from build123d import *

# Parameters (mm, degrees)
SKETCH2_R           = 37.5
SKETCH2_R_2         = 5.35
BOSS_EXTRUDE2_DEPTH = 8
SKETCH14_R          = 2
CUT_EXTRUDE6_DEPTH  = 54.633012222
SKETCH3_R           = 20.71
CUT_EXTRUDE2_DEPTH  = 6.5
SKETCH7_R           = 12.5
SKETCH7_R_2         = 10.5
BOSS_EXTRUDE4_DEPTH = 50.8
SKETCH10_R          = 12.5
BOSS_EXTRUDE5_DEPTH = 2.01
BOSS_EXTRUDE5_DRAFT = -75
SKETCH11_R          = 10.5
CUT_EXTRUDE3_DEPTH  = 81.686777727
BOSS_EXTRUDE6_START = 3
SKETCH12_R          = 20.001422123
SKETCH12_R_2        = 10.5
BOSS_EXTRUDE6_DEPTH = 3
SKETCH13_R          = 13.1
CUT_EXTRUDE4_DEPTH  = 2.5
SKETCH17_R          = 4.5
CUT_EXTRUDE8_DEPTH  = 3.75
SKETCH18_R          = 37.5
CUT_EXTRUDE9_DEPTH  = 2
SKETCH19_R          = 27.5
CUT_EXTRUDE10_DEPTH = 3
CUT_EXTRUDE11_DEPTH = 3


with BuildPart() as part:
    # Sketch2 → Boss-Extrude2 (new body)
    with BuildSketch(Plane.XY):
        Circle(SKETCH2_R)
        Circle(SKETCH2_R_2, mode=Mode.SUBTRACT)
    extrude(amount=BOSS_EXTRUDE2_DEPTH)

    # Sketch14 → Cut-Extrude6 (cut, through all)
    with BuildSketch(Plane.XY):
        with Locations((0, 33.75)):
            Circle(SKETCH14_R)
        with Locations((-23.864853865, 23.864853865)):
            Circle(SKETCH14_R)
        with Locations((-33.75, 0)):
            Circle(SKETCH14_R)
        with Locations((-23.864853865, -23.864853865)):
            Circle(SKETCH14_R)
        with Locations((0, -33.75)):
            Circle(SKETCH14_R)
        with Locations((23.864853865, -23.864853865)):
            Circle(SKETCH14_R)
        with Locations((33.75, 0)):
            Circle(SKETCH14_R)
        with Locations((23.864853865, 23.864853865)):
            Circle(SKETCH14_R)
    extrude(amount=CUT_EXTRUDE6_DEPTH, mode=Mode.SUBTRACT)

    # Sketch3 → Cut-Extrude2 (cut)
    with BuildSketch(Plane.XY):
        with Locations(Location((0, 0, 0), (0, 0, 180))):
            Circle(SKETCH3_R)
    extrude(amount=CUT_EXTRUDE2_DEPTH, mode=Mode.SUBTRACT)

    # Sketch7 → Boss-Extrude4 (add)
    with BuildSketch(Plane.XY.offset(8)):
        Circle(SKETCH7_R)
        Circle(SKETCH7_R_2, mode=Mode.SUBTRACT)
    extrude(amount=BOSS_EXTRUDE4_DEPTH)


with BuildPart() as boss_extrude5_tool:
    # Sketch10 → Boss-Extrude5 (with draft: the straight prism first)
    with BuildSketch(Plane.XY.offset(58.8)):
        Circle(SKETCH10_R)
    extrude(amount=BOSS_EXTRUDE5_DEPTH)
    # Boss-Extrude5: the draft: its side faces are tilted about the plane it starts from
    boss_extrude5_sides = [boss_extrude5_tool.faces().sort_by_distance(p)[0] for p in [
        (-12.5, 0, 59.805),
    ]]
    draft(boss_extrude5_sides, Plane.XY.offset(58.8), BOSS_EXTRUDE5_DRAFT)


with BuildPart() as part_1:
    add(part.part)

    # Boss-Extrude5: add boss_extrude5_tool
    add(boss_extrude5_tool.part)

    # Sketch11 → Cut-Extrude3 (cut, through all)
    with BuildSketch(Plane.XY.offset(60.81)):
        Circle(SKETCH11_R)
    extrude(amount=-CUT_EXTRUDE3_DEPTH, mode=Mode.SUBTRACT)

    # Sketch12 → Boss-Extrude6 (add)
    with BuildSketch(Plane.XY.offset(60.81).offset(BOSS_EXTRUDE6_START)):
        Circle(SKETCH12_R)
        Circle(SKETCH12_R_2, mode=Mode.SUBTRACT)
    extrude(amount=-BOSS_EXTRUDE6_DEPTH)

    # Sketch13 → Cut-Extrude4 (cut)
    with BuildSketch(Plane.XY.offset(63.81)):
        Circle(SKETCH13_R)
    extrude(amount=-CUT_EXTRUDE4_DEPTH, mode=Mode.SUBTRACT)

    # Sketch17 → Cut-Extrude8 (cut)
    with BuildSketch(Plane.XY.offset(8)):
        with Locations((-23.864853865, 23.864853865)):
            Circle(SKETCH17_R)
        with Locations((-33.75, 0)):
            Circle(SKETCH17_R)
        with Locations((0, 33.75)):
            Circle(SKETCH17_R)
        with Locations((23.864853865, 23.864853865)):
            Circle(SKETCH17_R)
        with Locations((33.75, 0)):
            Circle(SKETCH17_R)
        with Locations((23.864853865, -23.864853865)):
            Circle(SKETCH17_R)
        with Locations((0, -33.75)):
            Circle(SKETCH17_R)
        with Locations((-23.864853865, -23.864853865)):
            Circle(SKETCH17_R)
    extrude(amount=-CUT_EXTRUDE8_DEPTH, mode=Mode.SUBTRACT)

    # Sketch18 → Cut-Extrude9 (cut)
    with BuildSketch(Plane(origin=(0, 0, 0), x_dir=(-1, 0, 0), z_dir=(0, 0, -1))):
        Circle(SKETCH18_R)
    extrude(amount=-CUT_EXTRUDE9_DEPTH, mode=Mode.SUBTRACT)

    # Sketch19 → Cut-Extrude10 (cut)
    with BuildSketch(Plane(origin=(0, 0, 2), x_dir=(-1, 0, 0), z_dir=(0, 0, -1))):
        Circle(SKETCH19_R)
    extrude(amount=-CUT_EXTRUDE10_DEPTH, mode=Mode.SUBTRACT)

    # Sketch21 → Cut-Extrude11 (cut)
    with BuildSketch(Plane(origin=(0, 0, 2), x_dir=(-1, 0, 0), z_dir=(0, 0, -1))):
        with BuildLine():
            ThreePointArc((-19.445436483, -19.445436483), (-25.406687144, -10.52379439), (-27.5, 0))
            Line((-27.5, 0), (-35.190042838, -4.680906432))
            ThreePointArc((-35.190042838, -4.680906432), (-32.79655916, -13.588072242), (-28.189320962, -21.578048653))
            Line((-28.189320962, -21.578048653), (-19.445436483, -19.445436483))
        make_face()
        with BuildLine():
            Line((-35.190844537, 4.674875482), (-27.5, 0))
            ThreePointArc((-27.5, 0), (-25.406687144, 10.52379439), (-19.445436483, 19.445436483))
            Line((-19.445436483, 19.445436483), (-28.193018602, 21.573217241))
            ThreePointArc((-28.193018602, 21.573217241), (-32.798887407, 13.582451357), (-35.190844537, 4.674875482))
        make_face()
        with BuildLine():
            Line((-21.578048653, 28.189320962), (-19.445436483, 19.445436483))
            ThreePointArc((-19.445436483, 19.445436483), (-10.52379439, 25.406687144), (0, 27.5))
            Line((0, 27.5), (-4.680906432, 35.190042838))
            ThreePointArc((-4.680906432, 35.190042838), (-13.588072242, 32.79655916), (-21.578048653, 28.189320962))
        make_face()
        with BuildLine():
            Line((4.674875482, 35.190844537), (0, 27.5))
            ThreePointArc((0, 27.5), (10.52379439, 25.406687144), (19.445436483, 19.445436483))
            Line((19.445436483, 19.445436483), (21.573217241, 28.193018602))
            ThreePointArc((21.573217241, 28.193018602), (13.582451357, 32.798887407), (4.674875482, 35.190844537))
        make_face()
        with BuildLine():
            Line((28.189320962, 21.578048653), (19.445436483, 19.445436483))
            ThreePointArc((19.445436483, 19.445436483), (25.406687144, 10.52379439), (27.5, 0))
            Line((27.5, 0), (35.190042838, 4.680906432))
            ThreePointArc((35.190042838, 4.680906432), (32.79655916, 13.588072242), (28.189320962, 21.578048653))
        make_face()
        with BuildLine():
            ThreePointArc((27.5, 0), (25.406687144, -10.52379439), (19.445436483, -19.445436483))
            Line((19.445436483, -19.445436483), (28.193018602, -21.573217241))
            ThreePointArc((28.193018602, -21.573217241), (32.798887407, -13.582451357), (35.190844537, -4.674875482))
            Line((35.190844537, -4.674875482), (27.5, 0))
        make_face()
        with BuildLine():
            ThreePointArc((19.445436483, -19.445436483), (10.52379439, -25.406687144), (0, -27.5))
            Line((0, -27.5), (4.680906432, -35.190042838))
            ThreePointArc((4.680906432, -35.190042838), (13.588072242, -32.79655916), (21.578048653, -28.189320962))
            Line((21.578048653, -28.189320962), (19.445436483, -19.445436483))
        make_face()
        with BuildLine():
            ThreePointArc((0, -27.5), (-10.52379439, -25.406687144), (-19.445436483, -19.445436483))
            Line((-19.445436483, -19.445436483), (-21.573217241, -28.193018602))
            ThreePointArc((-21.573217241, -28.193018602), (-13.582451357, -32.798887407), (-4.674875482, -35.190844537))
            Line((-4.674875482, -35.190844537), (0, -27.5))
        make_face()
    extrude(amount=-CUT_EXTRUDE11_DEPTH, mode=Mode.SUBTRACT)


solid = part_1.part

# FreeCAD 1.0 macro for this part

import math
import FreeCAD as App
import Part
import Sketcher
from FreeCAD import Vector


def faces_at(feature, points):
    """Names of the faces that lie closest to the given points."""
    faces = feature.Shape.Faces
    near = lambda p: min(range(len(faces)), key=lambda i: faces[i].distToShape(Part.Vertex(*p))[0])
    return sorted({f"Face{near(p) + 1}" for p in points})

doc = App.newDocument("Part")
body = doc.addObject("PartDesign::Body", "Body")

# Sketch on XY plane
sketch1 = body.newObject("Sketcher::SketchObject", "Sketch")
sketch1.AttachmentSupport = (doc.getObject("XY_Plane"), [""])
sketch1.MapMode = "FlatFace"
sketch1.addGeometry(Part.Circle(Vector(0, 0, 0), Vector(0, 0, 1), 38), False)
sketch1.addGeometry(Part.Circle(Vector(0, 0, 0), Vector(0, 0, 1), 5), False)
sketch1.addConstraint(Sketcher.Constraint("Coincident", 0, 3, -1, 1))
sketch1.addConstraint(Sketcher.Constraint("Coincident", 1, 3, -1, 1))
sketch1.addConstraint(Sketcher.Constraint("Diameter", 0, 75.0))
sketch1.addConstraint(Sketcher.Constraint("Diameter", 1, 10.7))
pad1 = body.newObject("PartDesign::Pad", "Pad")
pad1.Profile = sketch1
pad1.Length = 8

# Sketch on XY plane
sketch2 = body.newObject("Sketcher::SketchObject", "Sketch001")
sketch2.AttachmentSupport = (doc.getObject("XY_Plane"), [""])
sketch2.MapMode = "FlatFace"
sketch2.addGeometry(Part.Circle(Vector(0, 33.8, 0), Vector(0, 0, 1), 2), False)
sketch2.addGeometry(Part.Circle(Vector(-23.9, 23.9, 0), Vector(0, 0, 1), 2), False)
sketch2.addGeometry(Part.Circle(Vector(-33.8, 0, 0), Vector(0, 0, 1), 2), False)
sketch2.addGeometry(Part.Circle(Vector(-23.9, -23.9, 0), Vector(0, 0, 1), 2), False)
sketch2.addGeometry(Part.Circle(Vector(0, -33.8, 0), Vector(0, 0, 1), 2), False)
sketch2.addGeometry(Part.Circle(Vector(23.9, -23.9, 0), Vector(0, 0, 1), 2), False)
sketch2.addGeometry(Part.Circle(Vector(33.8, 0, 0), Vector(0, 0, 1), 2), False)
sketch2.addGeometry(Part.Circle(Vector(23.9, 23.9, 0), Vector(0, 0, 1), 2), False)
sketch2.addConstraint(Sketcher.Constraint("Equal", 0, 1))
sketch2.addConstraint(Sketcher.Constraint("Equal", 1, 2))
sketch2.addConstraint(Sketcher.Constraint("Equal", 2, 3))
sketch2.addConstraint(Sketcher.Constraint("Equal", 3, 4))
sketch2.addConstraint(Sketcher.Constraint("Equal", 4, 5))
sketch2.addConstraint(Sketcher.Constraint("Equal", 5, 6))
sketch2.addConstraint(Sketcher.Constraint("Equal", 6, 7))
sketch2.addConstraint(Sketcher.Constraint("Symmetric", 0, 3, 4, 3, -1, 1))
sketch2.addConstraint(Sketcher.Constraint("Symmetric", 1, 3, 5, 3, -1, 1))
sketch2.addConstraint(Sketcher.Constraint("Symmetric", 2, 3, 6, 3, -1, 1))
sketch2.addConstraint(Sketcher.Constraint("Symmetric", 3, 3, 7, 3, -1, 1))
sketch2.addConstraint(Sketcher.Constraint("Symmetric", 3, 3, 5, 3, -2))
sketch2.addConstraint(Sketcher.Constraint("PointOnObject", 0, 3, -2))
sketch2.addConstraint(Sketcher.Constraint("PointOnObject", 2, 3, -1))
sketch2.addConstraint(Sketcher.Constraint("Diameter", 0, 4.0))
sketch2.addConstraint(Sketcher.Constraint("DistanceY", 4, 3, 0, 3, 67.5))
sketch2.addConstraint(Sketcher.Constraint("DistanceX", 2, 3, -1, 1, 33.75))
sketch2.addConstraint(Sketcher.Constraint("DistanceX", 1, 3, -1, 1, 23.864854))
sketch2.addConstraint(Sketcher.Constraint("DistanceY", -1, 1, 1, 3, 23.864854))
pocket1 = body.newObject("PartDesign::Pocket", "Pocket")
pocket1.Profile = sketch2
pocket1.Type = "ThroughAll"
pocket1.Reversed = True

# Sketch on XY plane
sketch3 = body.newObject("Sketcher::SketchObject", "Sketch002")
sketch3.AttachmentSupport = (doc.getObject("XY_Plane"), [""])
sketch3.MapMode = "FlatFace"
sketch3.addGeometry(Part.Circle(Vector(0, 0, 0), Vector(0, 0, 1), 21), False)
sketch3.addConstraint(Sketcher.Constraint("Coincident", 0, 3, -1, 1))
sketch3.addConstraint(Sketcher.Constraint("Diameter", 0, 41.42))
pocket2 = body.newObject("PartDesign::Pocket", "Pocket001")
pocket2.Profile = sketch3
pocket2.Length = 6.5
pocket2.Reversed = True

# Sketch on XY plane
sketch4 = body.newObject("Sketcher::SketchObject", "Sketch003")
sketch4.AttachmentSupport = (doc.getObject("XY_Plane"), [""])
sketch4.MapMode = "FlatFace"
sketch4.AttachmentOffset = App.Placement(Vector(0, 0, 8), App.Rotation())
sketch4.addGeometry(Part.Circle(Vector(0, 0, 0), Vector(0, 0, 1), 12), False)
sketch4.addGeometry(Part.Circle(Vector(0, 0, 0), Vector(0, 0, 1), 10), False)
sketch4.addConstraint(Sketcher.Constraint("Coincident", 0, 3, -1, 1))
sketch4.addConstraint(Sketcher.Constraint("Coincident", 1, 3, -1, 1))
sketch4.addConstraint(Sketcher.Constraint("Diameter", 0, 25.0))
sketch4.addConstraint(Sketcher.Constraint("Diameter", 1, 21.0))
pad2 = body.newObject("PartDesign::Pad", "Pad001")
pad2.Profile = sketch4
pad2.Length = 50.8
body2 = doc.addObject("PartDesign::Body", "Body001")

# Sketch on XY plane
sketch5 = body2.newObject("Sketcher::SketchObject", "Sketch004")
sketch5.AttachmentSupport = (doc.getObject("XY_Plane001"), [""])
sketch5.MapMode = "FlatFace"
sketch5.AttachmentOffset = App.Placement(Vector(0, 0, 58.8), App.Rotation())
sketch5.addGeometry(Part.Circle(Vector(0, 0, 0), Vector(0, 0, 1), 12), False)
sketch5.addConstraint(Sketcher.Constraint("Coincident", 0, 3, -1, 1))
sketch5.addConstraint(Sketcher.Constraint("Diameter", 0, 25.0))
pad3 = body2.newObject("PartDesign::Pad", "Pad002")
pad3.Profile = sketch5
pad3.Length = 2.01
doc.recompute()

datumplane = body2.newObject("PartDesign::Plane", "DatumPlane")
datumplane.AttachmentSupport = (doc.getObject("XY_Plane001"), [""])
datumplane.MapMode = "FlatFace"
datumplane.AttachmentOffset = App.Placement(Vector(0, 0, 58.8), App.Rotation())
draft = body2.newObject("PartDesign::Draft", "Draft")
draft.Base = (pad3, faces_at(pad3, [(-12.5, 0, 59.805)]))
draft.NeutralPlane = (datumplane, [""])
draft.Angle = 75
draft.Reversed = True
doc.recompute()

boolean = body.newObject("PartDesign::Boolean", "Boolean")
boolean.Type = "Fuse"
boolean.addObjects([body2])

# Sketch on XY plane
sketch6 = body.newObject("Sketcher::SketchObject", "Sketch005")
sketch6.AttachmentSupport = (doc.getObject("XY_Plane"), [""])
sketch6.MapMode = "FlatFace"
sketch6.AttachmentOffset = App.Placement(Vector(0, 0, 60.81), App.Rotation())
sketch6.addGeometry(Part.Circle(Vector(0, 0, 0), Vector(0, 0, 1), 10), False)
sketch6.addConstraint(Sketcher.Constraint("Coincident", 0, 3, -1, 1))
sketch6.addConstraint(Sketcher.Constraint("Diameter", 0, 21.0))
pocket3 = body.newObject("PartDesign::Pocket", "Pocket002")
pocket3.Profile = sketch6
pocket3.Type = "ThroughAll"

# Sketch on XY plane
sketch7 = body.newObject("Sketcher::SketchObject", "Sketch006")
sketch7.AttachmentSupport = (doc.getObject("XY_Plane"), [""])
sketch7.MapMode = "FlatFace"
sketch7.AttachmentOffset = App.Placement(Vector(0, 0, 63.81), App.Rotation())
sketch7.addGeometry(Part.Circle(Vector(0, 0, 0), Vector(0, 0, 1), 20), False)
sketch7.addGeometry(Part.Circle(Vector(0, 0, 0), Vector(0, 0, 1), 10), False)
sketch7.addConstraint(Sketcher.Constraint("Coincident", 0, 3, -1, 1))
sketch7.addConstraint(Sketcher.Constraint("Coincident", 1, 3, -1, 1))
sketch7.addConstraint(Sketcher.Constraint("Diameter", 1, 21.0))
sketch7.addConstraint(Sketcher.Constraint("Diameter", 0, 40.002844))
pad4 = body.newObject("PartDesign::Pad", "Pad003")
pad4.Profile = sketch7
pad4.Length = 3
pad4.Reversed = True

# Sketch on XY plane
sketch8 = body.newObject("Sketcher::SketchObject", "Sketch007")
sketch8.AttachmentSupport = (doc.getObject("XY_Plane"), [""])
sketch8.MapMode = "FlatFace"
sketch8.AttachmentOffset = App.Placement(Vector(0, 0, 63.81), App.Rotation())
sketch8.addGeometry(Part.Circle(Vector(0, 0, 0), Vector(0, 0, 1), 13), False)
sketch8.addConstraint(Sketcher.Constraint("Coincident", 0, 3, -1, 1))
sketch8.addConstraint(Sketcher.Constraint("Diameter", 0, 26.2))
pocket4 = body.newObject("PartDesign::Pocket", "Pocket003")
pocket4.Profile = sketch8
pocket4.Length = 2.5

# Sketch on XY plane
sketch9 = body.newObject("Sketcher::SketchObject", "Sketch008")
sketch9.AttachmentSupport = (doc.getObject("XY_Plane"), [""])
sketch9.MapMode = "FlatFace"
sketch9.AttachmentOffset = App.Placement(Vector(0, 0, 8), App.Rotation())
sketch9.addGeometry(Part.Circle(Vector(-23.9, 23.9, 0), Vector(0, 0, 1), 4.5), False)
sketch9.addGeometry(Part.Circle(Vector(-33.8, 0, 0), Vector(0, 0, 1), 4.5), False)
sketch9.addGeometry(Part.Circle(Vector(0, 33.8, 0), Vector(0, 0, 1), 4.5), False)
sketch9.addGeometry(Part.Circle(Vector(23.9, 23.9, 0), Vector(0, 0, 1), 4.5), False)
sketch9.addGeometry(Part.Circle(Vector(33.8, 0, 0), Vector(0, 0, 1), 4.5), False)
sketch9.addGeometry(Part.Circle(Vector(23.9, -23.9, 0), Vector(0, 0, 1), 4.5), False)
sketch9.addGeometry(Part.Circle(Vector(0, -33.8, 0), Vector(0, 0, 1), 4.5), False)
sketch9.addGeometry(Part.Circle(Vector(-23.9, -23.9, 0), Vector(0, 0, 1), 4.5), False)
sketch9.addConstraint(Sketcher.Constraint("Equal", 0, 1))
sketch9.addConstraint(Sketcher.Constraint("Equal", 1, 2))
sketch9.addConstraint(Sketcher.Constraint("Equal", 2, 3))
sketch9.addConstraint(Sketcher.Constraint("Equal", 3, 4))
sketch9.addConstraint(Sketcher.Constraint("Equal", 4, 5))
sketch9.addConstraint(Sketcher.Constraint("Equal", 5, 6))
sketch9.addConstraint(Sketcher.Constraint("Equal", 6, 7))
sketch9.addConstraint(Sketcher.Constraint("Symmetric", 1, 3, 4, 3, -1, 1))
sketch9.addConstraint(Sketcher.Constraint("Symmetric", 0, 3, 5, 3, -1, 1))
sketch9.addConstraint(Sketcher.Constraint("Symmetric", 2, 3, 6, 3, -1, 1))
sketch9.addConstraint(Sketcher.Constraint("Symmetric", 3, 3, 7, 3, -1, 1))
sketch9.addConstraint(Sketcher.Constraint("Symmetric", 0, 3, 3, 3, -2))
sketch9.addConstraint(Sketcher.Constraint("PointOnObject", 1, 3, -1))
sketch9.addConstraint(Sketcher.Constraint("PointOnObject", 2, 3, -2))
sketch9.addConstraint(Sketcher.Constraint("Diameter", 0, 9.0))
sketch9.addConstraint(Sketcher.Constraint("DistanceX", 1, 3, 4, 3, 67.5))
sketch9.addConstraint(Sketcher.Constraint("DistanceY", -1, 1, 2, 3, 33.75))
sketch9.addConstraint(Sketcher.Constraint("DistanceX", 0, 3, -1, 1, 23.864854))
sketch9.addConstraint(Sketcher.Constraint("DistanceY", -1, 1, 0, 3, 23.864854))
pocket5 = body.newObject("PartDesign::Pocket", "Pocket004")
pocket5.Profile = sketch9
pocket5.Length = 3.75

# Sketch on XY plane
sketch10 = body.newObject("Sketcher::SketchObject", "Sketch009")
sketch10.AttachmentSupport = (doc.getObject("XY_Plane"), [""])
sketch10.MapMode = "FlatFace"
sketch10.addGeometry(Part.Circle(Vector(0, 0, 0), Vector(0, 0, 1), 38), False)
sketch10.addConstraint(Sketcher.Constraint("Coincident", 0, 3, -1, 1))
sketch10.addConstraint(Sketcher.Constraint("Diameter", 0, 75.0))
pocket6 = body.newObject("PartDesign::Pocket", "Pocket005")
pocket6.Profile = sketch10
pocket6.Length = 2
pocket6.Reversed = True

# Sketch on XY plane
sketch11 = body.newObject("Sketcher::SketchObject", "Sketch010")
sketch11.AttachmentSupport = (doc.getObject("XY_Plane"), [""])
sketch11.MapMode = "FlatFace"
sketch11.AttachmentOffset = App.Placement(Vector(0, 0, 2), App.Rotation())
sketch11.addGeometry(Part.Circle(Vector(0, 0, 0), Vector(0, 0, 1), 28), False)
sketch11.addConstraint(Sketcher.Constraint("Coincident", 0, 3, -1, 1))
sketch11.addConstraint(Sketcher.Constraint("Diameter", 0, 55.0))
pocket7 = body.newObject("PartDesign::Pocket", "Pocket006")
pocket7.Profile = sketch11
pocket7.Length = 3
pocket7.Reversed = True

# Sketch on XY plane
sketch12 = body.newObject("Sketcher::SketchObject", "Sketch011")
sketch12.AttachmentSupport = (doc.getObject("XY_Plane"), [""])
sketch12.MapMode = "FlatFace"
sketch12.AttachmentOffset = App.Placement(Vector(0, 0, 2), App.Rotation())
sketch12.addGeometry(Part.ArcOfCircle(Part.Circle(Vector(0, 0, 0), Vector(0, 0, 1), 28), math.radians(-45), math.radians(0)), False)
sketch12.addGeometry(Part.LineSegment(Vector(28, 0, 0), Vector(35, -5, 0)), False)
sketch12.addGeometry(Part.ArcOfCircle(Part.Circle(Vector(0, 0, 0), Vector(0, 0, 1), 35), math.radians(-37), math.radians(-8)), False)
sketch12.addGeometry(Part.LineSegment(Vector(28, -22, 0), Vector(19, -19, 0)), False)
sketch12.addGeometry(Part.LineSegment(Vector(35, 5, 0), Vector(28, 0, 0)), False)
sketch12.addGeometry(Part.ArcOfCircle(Part.Circle(Vector(0, 0, 0), Vector(0, 0, 1), 28), math.radians(0), math.radians(45)), False)
sketch12.addGeometry(Part.LineSegment(Vector(19, 19, 0), Vector(28, 22, 0)), False)
sketch12.addGeometry(Part.ArcOfCircle(Part.Circle(Vector(0, 0, 0), Vector(0, 0, 1), 36), math.radians(8), math.radians(37)), False)
sketch12.addGeometry(Part.LineSegment(Vector(22, 28, 0), Vector(19, 19, 0)), False)
sketch12.addGeometry(Part.ArcOfCircle(Part.Circle(Vector(0, 0, 0), Vector(0, 0, 1), 28), math.radians(45), math.radians(90)), False)
sketch12.addGeometry(Part.LineSegment(Vector(0, 28, 0), Vector(5, 35, 0)), False)
sketch12.addGeometry(Part.ArcOfCircle(Part.Circle(Vector(0, 0, 0), Vector(0, 0, 1), 35), math.radians(53), math.radians(82)), False)
sketch12.addGeometry(Part.LineSegment(Vector(-5, 35, 0), Vector(0, 28, 0)), False)
sketch12.addGeometry(Part.ArcOfCircle(Part.Circle(Vector(0, 0, 0), Vector(0, 0, 1), 28), math.radians(90), math.radians(135)), False)
sketch12.addGeometry(Part.LineSegment(Vector(-19, 19, 0), Vector(-22, 28, 0)), False)
sketch12.addGeometry(Part.ArcOfCircle(Part.Circle(Vector(0, 0, 0), Vector(0, 0, 1), 36), math.radians(98), math.radians(127)), False)
sketch12.addGeometry(Part.LineSegment(Vector(-28, 22, 0), Vector(-19, 19, 0)), False)
sketch12.addGeometry(Part.ArcOfCircle(Part.Circle(Vector(0, 0, 0), Vector(0, 0, 1), 28), math.radians(135), math.radians(180)), False)
sketch12.addGeometry(Part.LineSegment(Vector(-28, 0, 0), Vector(-35, 5, 0)), False)
sketch12.addGeometry(Part.ArcOfCircle(Part.Circle(Vector(0, 0, 0), Vector(0, 0, 1), 35), math.radians(143), math.radians(172)), False)
sketch12.addGeometry(Part.ArcOfCircle(Part.Circle(Vector(0, 0, 0), Vector(0, 0, 1), 28), math.radians(-180), math.radians(-135)), False)
sketch12.addGeometry(Part.LineSegment(Vector(-19, -19, 0), Vector(-28, -22, 0)), False)
sketch12.addGeometry(Part.ArcOfCircle(Part.Circle(Vector(0, 0, 0), Vector(0, 0, 1), 36), math.radians(-172), math.radians(-143)), False)
sketch12.addGeometry(Part.LineSegment(Vector(-35, -5, 0), Vector(-28, 0, 0)), False)
sketch12.addGeometry(Part.ArcOfCircle(Part.Circle(Vector(0, 0, 0), Vector(0, 0, 1), 28), math.radians(-135), math.radians(-90)), False)
sketch12.addGeometry(Part.LineSegment(Vector(0, -28, 0), Vector(-5, -35, 0)), False)
sketch12.addGeometry(Part.ArcOfCircle(Part.Circle(Vector(0, 0, 0), Vector(0, 0, 1), 35), math.radians(-127), math.radians(-98)), False)
sketch12.addGeometry(Part.LineSegment(Vector(-22, -28, 0), Vector(-19, -19, 0)), False)
sketch12.addGeometry(Part.ArcOfCircle(Part.Circle(Vector(0, 0, 0), Vector(0, 0, 1), 28), math.radians(-90), math.radians(-45)), False)
sketch12.addGeometry(Part.LineSegment(Vector(19, -19, 0), Vector(22, -28, 0)), False)
sketch12.addGeometry(Part.ArcOfCircle(Part.Circle(Vector(0, 0, 0), Vector(0, 0, 1), 36), math.radians(-82), math.radians(-53)), False)
sketch12.addGeometry(Part.LineSegment(Vector(5, -35, 0), Vector(0, -28, 0)), False)
sketch12.addConstraint(Sketcher.Constraint("Coincident", 0, 2, 1, 1))
sketch12.addConstraint(Sketcher.Constraint("Coincident", 1, 2, 2, 2))
sketch12.addConstraint(Sketcher.Constraint("Coincident", 2, 1, 3, 1))
sketch12.addConstraint(Sketcher.Constraint("Coincident", 3, 2, 0, 1))
sketch12.addConstraint(Sketcher.Constraint("Coincident", 4, 2, 5, 1))
sketch12.addConstraint(Sketcher.Constraint("Coincident", 5, 2, 6, 1))
sketch12.addConstraint(Sketcher.Constraint("Coincident", 6, 2, 7, 2))
sketch12.addConstraint(Sketcher.Constraint("Coincident", 7, 1, 4, 1))
sketch12.addConstraint(Sketcher.Constraint("Coincident", 8, 2, 9, 1))
sketch12.addConstraint(Sketcher.Constraint("Coincident", 9, 2, 10, 1))
sketch12.addConstraint(Sketcher.Constraint("Coincident", 10, 2, 11, 2))
sketch12.addConstraint(Sketcher.Constraint("Coincident", 11, 1, 8, 1))
sketch12.addConstraint(Sketcher.Constraint("Coincident", 12, 2, 13, 1))
sketch12.addConstraint(Sketcher.Constraint("Coincident", 13, 2, 14, 1))
sketch12.addConstraint(Sketcher.Constraint("Coincident", 14, 2, 15, 2))
sketch12.addConstraint(Sketcher.Constraint("Coincident", 15, 1, 12, 1))
sketch12.addConstraint(Sketcher.Constraint("Coincident", 16, 2, 17, 1))
sketch12.addConstraint(Sketcher.Constraint("Coincident", 17, 2, 18, 1))
sketch12.addConstraint(Sketcher.Constraint("Coincident", 18, 2, 19, 2))
sketch12.addConstraint(Sketcher.Constraint("Coincident", 19, 1, 16, 1))
sketch12.addConstraint(Sketcher.Constraint("Coincident", 20, 2, 21, 1))
sketch12.addConstraint(Sketcher.Constraint("Coincident", 21, 2, 22, 2))
sketch12.addConstraint(Sketcher.Constraint("Coincident", 22, 1, 23, 1))
sketch12.addConstraint(Sketcher.Constraint("Coincident", 23, 2, 20, 1))
sketch12.addConstraint(Sketcher.Constraint("Coincident", 24, 2, 25, 1))
sketch12.addConstraint(Sketcher.Constraint("Coincident", 25, 2, 26, 2))
sketch12.addConstraint(Sketcher.Constraint("Coincident", 26, 1, 27, 1))
sketch12.addConstraint(Sketcher.Constraint("Coincident", 27, 2, 24, 1))
sketch12.addConstraint(Sketcher.Constraint("Coincident", 28, 2, 29, 1))
sketch12.addConstraint(Sketcher.Constraint("Coincident", 29, 2, 30, 2))
sketch12.addConstraint(Sketcher.Constraint("Coincident", 30, 1, 31, 1))
sketch12.addConstraint(Sketcher.Constraint("Coincident", 31, 2, 28, 1))
sketch12.addConstraint(Sketcher.Constraint("Coincident", 0, 3, -1, 1))
sketch12.addConstraint(Sketcher.Constraint("Coincident", 2, 3, -1, 1))
sketch12.addConstraint(Sketcher.Constraint("Coincident", 5, 3, -1, 1))
sketch12.addConstraint(Sketcher.Constraint("Coincident", 7, 3, -1, 1))
sketch12.addConstraint(Sketcher.Constraint("Coincident", 9, 3, -1, 1))
sketch12.addConstraint(Sketcher.Constraint("Coincident", 11, 3, -1, 1))
sketch12.addConstraint(Sketcher.Constraint("Coincident", 13, 3, -1, 1))
sketch12.addConstraint(Sketcher.Constraint("Coincident", 15, 3, -1, 1))
sketch12.addConstraint(Sketcher.Constraint("Coincident", 17, 3, -1, 1))
sketch12.addConstraint(Sketcher.Constraint("Coincident", 19, 3, -1, 1))
sketch12.addConstraint(Sketcher.Constraint("Coincident", 20, 3, -1, 1))
sketch12.addConstraint(Sketcher.Constraint("Coincident", 22, 3, -1, 1))
sketch12.addConstraint(Sketcher.Constraint("Coincident", 24, 3, -1, 1))
sketch12.addConstraint(Sketcher.Constraint("Coincident", 26, 3, -1, 1))
sketch12.addConstraint(Sketcher.Constraint("Coincident", 28, 3, -1, 1))
sketch12.addConstraint(Sketcher.Constraint("Coincident", 30, 3, -1, 1))
sketch12.addConstraint(Sketcher.Constraint("Coincident", 4, 2, 0, 2))
sketch12.addConstraint(Sketcher.Constraint("Coincident", 8, 2, 5, 2))
sketch12.addConstraint(Sketcher.Constraint("Coincident", 12, 2, 9, 2))
sketch12.addConstraint(Sketcher.Constraint("Coincident", 16, 2, 13, 2))
sketch12.addConstraint(Sketcher.Constraint("Coincident", 23, 2, 17, 2))
sketch12.addConstraint(Sketcher.Constraint("Coincident", 27, 2, 20, 2))
sketch12.addConstraint(Sketcher.Constraint("Coincident", 28, 2, 3, 2))
sketch12.addConstraint(Sketcher.Constraint("Equal", 2, 7))
sketch12.addConstraint(Sketcher.Constraint("Equal", 7, 11))
sketch12.addConstraint(Sketcher.Constraint("Equal", 11, 15))
sketch12.addConstraint(Sketcher.Constraint("Equal", 15, 19))
sketch12.addConstraint(Sketcher.Constraint("Equal", 19, 22))
sketch12.addConstraint(Sketcher.Constraint("Equal", 22, 26))
sketch12.addConstraint(Sketcher.Constraint("Equal", 26, 30))
sketch12.addConstraint(Sketcher.Constraint("PointOnObject", 0, 2, -1))
sketch12.addConstraint(Sketcher.Constraint("PointOnObject", 9, 2, -2))
sketch12.addConstraint(Sketcher.Constraint("PointOnObject", 17, 2, -1))
sketch12.addConstraint(Sketcher.Constraint("PointOnObject", 24, 2, -2))
sketch12.addConstraint(Sketcher.Constraint("PointOnObject", 31, 2, -2))
sketch12.addConstraint(Sketcher.Constraint("Perpendicular", 3, 8))
sketch12.addConstraint(Sketcher.Constraint("Perpendicular", 1, 10))
sketch12.addConstraint(Sketcher.Constraint("Perpendicular", 4, 12))
sketch12.addConstraint(Sketcher.Constraint("Perpendicular", 6, 14))
sketch12.addConstraint(Sketcher.Constraint("Perpendicular", 8, 16))
sketch12.addConstraint(Sketcher.Constraint("Perpendicular", 10, 18))
sketch12.addConstraint(Sketcher.Constraint("Perpendicular", 14, 21))
sketch12.addConstraint(Sketcher.Constraint("Perpendicular", 12, 23))
sketch12.addConstraint(Sketcher.Constraint("Perpendicular", 18, 25))
sketch12.addConstraint(Sketcher.Constraint("Perpendicular", 16, 27))
sketch12.addConstraint(Sketcher.Constraint("Perpendicular", 21, 29))
sketch12.addConstraint(Sketcher.Constraint("Perpendicular", 23, 31))
sketch12.addConstraint(Sketcher.Constraint("Horizontal", 8, 2, 13, 2))
sketch12.addConstraint(Sketcher.Constraint("Horizontal", 3, 2, 20, 2))
sketch12.addConstraint(Sketcher.Constraint("Vertical", 3, 2, 5, 2))
sketch12.addConstraint(Sketcher.Constraint("Equal", 3, 4))
sketch12.addConstraint(Sketcher.Constraint("Equal", 1, 6))
sketch12.addConstraint(Sketcher.Constraint("Equal", 4, 8))
sketch12.addConstraint(Sketcher.Constraint("Radius", 0, 27.5))
sketch12.addConstraint(Sketcher.Constraint("Radius", 2, 35.5))
sketch12.addConstraint(Sketcher.Constraint("DistanceX", 1, 2, 7, 1, 0.000802))
sketch12.addConstraint(Sketcher.Constraint("DistanceX", -1, 1, 2, 1, 28.189321))
pocket8 = body.newObject("PartDesign::Pocket", "Pocket007")
pocket8.Profile = sketch12
pocket8.Length = 3
pocket8.Reversed = True

doc.recompute()
